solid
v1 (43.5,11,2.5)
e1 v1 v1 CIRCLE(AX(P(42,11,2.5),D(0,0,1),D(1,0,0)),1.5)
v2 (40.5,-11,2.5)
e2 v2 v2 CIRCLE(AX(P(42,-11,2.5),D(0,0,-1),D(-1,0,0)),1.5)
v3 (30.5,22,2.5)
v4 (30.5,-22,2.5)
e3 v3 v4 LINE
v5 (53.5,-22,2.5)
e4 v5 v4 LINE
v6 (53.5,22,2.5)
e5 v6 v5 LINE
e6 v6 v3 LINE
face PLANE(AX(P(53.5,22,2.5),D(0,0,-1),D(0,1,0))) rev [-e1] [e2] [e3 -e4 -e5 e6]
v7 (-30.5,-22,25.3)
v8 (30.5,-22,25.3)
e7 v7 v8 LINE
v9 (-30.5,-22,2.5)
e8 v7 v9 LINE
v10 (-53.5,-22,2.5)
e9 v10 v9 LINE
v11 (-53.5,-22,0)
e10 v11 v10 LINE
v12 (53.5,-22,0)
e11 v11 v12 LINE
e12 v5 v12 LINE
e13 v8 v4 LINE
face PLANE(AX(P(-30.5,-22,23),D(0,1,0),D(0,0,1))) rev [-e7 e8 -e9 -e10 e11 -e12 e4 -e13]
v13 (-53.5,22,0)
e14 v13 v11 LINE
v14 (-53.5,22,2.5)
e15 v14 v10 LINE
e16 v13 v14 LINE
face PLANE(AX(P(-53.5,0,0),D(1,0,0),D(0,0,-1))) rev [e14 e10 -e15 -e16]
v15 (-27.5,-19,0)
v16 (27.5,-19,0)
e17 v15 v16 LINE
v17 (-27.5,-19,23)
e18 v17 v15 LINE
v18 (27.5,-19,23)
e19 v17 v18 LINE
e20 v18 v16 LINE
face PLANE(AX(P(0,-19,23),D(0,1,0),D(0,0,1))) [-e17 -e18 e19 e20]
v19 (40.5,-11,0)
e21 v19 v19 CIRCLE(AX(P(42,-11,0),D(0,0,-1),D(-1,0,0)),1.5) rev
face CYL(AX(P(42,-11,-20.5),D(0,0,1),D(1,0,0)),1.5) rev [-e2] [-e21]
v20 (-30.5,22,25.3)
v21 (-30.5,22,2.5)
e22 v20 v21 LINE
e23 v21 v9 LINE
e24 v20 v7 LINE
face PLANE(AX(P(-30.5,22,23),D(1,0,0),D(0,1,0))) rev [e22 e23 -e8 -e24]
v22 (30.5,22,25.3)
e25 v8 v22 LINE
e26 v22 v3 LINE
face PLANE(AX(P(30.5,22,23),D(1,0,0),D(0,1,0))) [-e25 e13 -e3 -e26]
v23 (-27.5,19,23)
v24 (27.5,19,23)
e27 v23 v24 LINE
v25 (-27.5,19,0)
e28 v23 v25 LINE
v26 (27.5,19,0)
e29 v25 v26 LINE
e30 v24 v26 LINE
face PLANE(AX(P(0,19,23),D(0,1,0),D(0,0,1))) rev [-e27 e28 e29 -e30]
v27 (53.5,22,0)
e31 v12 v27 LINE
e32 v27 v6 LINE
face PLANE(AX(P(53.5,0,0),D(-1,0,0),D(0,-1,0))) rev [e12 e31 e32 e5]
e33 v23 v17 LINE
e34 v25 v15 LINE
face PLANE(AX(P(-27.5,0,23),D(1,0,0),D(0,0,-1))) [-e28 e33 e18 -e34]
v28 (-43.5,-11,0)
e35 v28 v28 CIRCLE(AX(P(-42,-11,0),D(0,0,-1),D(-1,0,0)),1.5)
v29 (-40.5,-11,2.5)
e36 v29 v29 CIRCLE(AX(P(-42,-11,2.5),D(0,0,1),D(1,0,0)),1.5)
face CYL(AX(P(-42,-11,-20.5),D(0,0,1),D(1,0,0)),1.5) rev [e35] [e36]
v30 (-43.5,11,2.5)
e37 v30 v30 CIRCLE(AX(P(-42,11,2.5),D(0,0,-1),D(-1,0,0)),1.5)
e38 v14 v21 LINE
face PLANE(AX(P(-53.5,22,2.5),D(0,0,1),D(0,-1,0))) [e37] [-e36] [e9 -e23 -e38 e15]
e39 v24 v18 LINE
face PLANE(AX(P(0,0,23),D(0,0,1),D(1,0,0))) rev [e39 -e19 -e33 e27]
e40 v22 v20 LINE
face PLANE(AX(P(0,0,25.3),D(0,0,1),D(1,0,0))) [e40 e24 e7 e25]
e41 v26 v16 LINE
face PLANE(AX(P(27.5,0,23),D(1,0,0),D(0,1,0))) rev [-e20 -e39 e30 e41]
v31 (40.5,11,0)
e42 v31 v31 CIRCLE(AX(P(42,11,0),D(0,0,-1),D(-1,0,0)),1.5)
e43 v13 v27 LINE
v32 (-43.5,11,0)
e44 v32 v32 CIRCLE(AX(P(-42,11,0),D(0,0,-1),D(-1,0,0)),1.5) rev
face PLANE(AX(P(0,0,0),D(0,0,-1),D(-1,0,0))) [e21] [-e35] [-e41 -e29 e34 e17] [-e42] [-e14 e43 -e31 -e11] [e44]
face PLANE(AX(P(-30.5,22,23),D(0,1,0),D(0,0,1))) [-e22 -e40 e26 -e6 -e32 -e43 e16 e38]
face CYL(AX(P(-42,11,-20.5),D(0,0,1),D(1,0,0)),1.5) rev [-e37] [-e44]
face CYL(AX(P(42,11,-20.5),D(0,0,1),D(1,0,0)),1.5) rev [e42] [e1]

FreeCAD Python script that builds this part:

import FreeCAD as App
import Part
import Sketcher
from FreeCAD import Vector

doc = App.newDocument("Part")
body = doc.addObject("PartDesign::Body", "Body")

sketch1 = body.newObject("Sketcher::SketchObject", "Sketch")
sketch1.AttachmentSupport = (doc.getObject("XY_Plane"), [""])
sketch1.MapMode = "FlatFace"
sketch1.addGeometry(Part.LineSegment(Vector(-30, 22, 0), Vector(-30, -22, 0)), False)
sketch1.addGeometry(Part.LineSegment(Vector(-30, -22, 0), Vector(30, -22, 0)), False)
sketch1.addGeometry(Part.LineSegment(Vector(30, -22, 0), Vector(30, 22, 0)), False)
sketch1.addGeometry(Part.LineSegment(Vector(30, 22, 0), Vector(-30, 22, 0)), False)
sketch1.addGeometry(Part.LineSegment(Vector(28, -19, 0), Vector(-28, -19, 0)), False)
sketch1.addGeometry(Part.LineSegment(Vector(-28, -19, 0), Vector(-28, 19, 0)), False)
sketch1.addGeometry(Part.LineSegment(Vector(-28, 19, 0), Vector(28, 19, 0)), False)
sketch1.addGeometry(Part.LineSegment(Vector(28, 19, 0), Vector(28, -19, 0)), False)
sketch1.addConstraint(Sketcher.Constraint("Coincident", 0, 2, 1, 1))
sketch1.addConstraint(Sketcher.Constraint("Coincident", 1, 2, 2, 1))
sketch1.addConstraint(Sketcher.Constraint("Coincident", 2, 2, 3, 1))
sketch1.addConstraint(Sketcher.Constraint("Coincident", 3, 2, 0, 1))
sketch1.addConstraint(Sketcher.Constraint("Coincident", 4, 2, 5, 1))
sketch1.addConstraint(Sketcher.Constraint("Coincident", 5, 2, 6, 1))
sketch1.addConstraint(Sketcher.Constraint("Coincident", 6, 2, 7, 1))
sketch1.addConstraint(Sketcher.Constraint("Coincident", 7, 2, 4, 1))
sketch1.addConstraint(Sketcher.Constraint("Vertical", 0))
sketch1.addConstraint(Sketcher.Constraint("Horizontal", 1))
sketch1.addConstraint(Sketcher.Constraint("Vertical", 2))
sketch1.addConstraint(Sketcher.Constraint("Horizontal", 3))
sketch1.addConstraint(Sketcher.Constraint("Horizontal", 4))
sketch1.addConstraint(Sketcher.Constraint("Vertical", 5))
sketch1.addConstraint(Sketcher.Constraint("Horizontal", 6))
sketch1.addConstraint(Sketcher.Constraint("Vertical", 7))
sketch1.addConstraint(Sketcher.Constraint("Symmetric", 0, 2, 2, 2, -1, 1))
sketch1.addConstraint(Sketcher.Constraint("Symmetric", 4, 2, 6, 2, -1, 1))
sketch1.addConstraint(Sketcher.Constraint("DistanceX", 1, 1, 1, 2, 61.0))
sketch1.addConstraint(Sketcher.Constraint("DistanceX", 4, 2, 4, 1, 55.0))
sketch1.addConstraint(Sketcher.Constraint("DistanceY", 0, 2, 0, 1, 44.0))
sketch1.addConstraint(Sketcher.Constraint("DistanceY", 5, 1, 5, 2, 38.0))
pad1 = body.newObject("PartDesign::Pad", "Pad")
pad1.Profile = sketch1
pad1.Length = 23

sketch2 = body.newObject("Sketcher::SketchObject", "Sketch001")
sketch2.AttachmentSupport = (doc.getObject("XY_Plane"), [""])
sketch2.MapMode = "FlatFace"
sketch2.AttachmentOffset = App.Placement(Vector(0, 0, 23), App.Rotation())
sketch2.addGeometry(Part.LineSegment(Vector(-30, 22, 0), Vector(-30, -22, 0)), False)
sketch2.addGeometry(Part.LineSegment(Vector(-30, -22, 0), Vector(30, -22, 0)), False)
sketch2.addGeometry(Part.LineSegment(Vector(30, -22, 0), Vector(30, 22, 0)), False)
sketch2.addGeometry(Part.LineSegment(Vector(30, 22, 0), Vector(-30, 22, 0)), False)
sketch2.addConstraint(Sketcher.Constraint("Coincident", 0, 2, 1, 1))
sketch2.addConstraint(Sketcher.Constraint("Coincident", 1, 2, 2, 1))
sketch2.addConstraint(Sketcher.Constraint("Coincident", 2, 2, 3, 1))
sketch2.addConstraint(Sketcher.Constraint("Coincident", 3, 2, 0, 1))
sketch2.addConstraint(Sketcher.Constraint("Vertical", 0))
sketch2.addConstraint(Sketcher.Constraint("Horizontal", 1))
sketch2.addConstraint(Sketcher.Constraint("Vertical", 2))
sketch2.addConstraint(Sketcher.Constraint("Horizontal", 3))
sketch2.addConstraint(Sketcher.Constraint("Symmetric", 0, 2, 2, 2, -1, 1))
sketch2.addConstraint(Sketcher.Constraint("DistanceX", 1, 1, 1, 2, 61.0))
sketch2.addConstraint(Sketcher.Constraint("DistanceY", 0, 2, 0, 1, 44.0))
pad2 = body.newObject("PartDesign::Pad", "Pad001")
pad2.Profile = sketch2
pad2.Length = 2.3

sketch3 = body.newObject("Sketcher::SketchObject", "Sketch002")
sketch3.AttachmentSupport = (doc.getObject("YZ_Plane"), [""])
sketch3.MapMode = "FlatFace"
sketch3.AttachmentOffset = App.Placement(Vector(0, 0, -30.5), App.Rotation())
sketch3.addGeometry(Part.LineSegment(Vector(22, 0, 0), Vector(-22, 0, 0)), False)
sketch3.addGeometry(Part.LineSegment(Vector(-22, 0, 0), Vector(-22, 2.5, 0)), False)
sketch3.addGeometry(Part.LineSegment(Vector(-22, 2.5, 0), Vector(22, 2.5, 0)), False)
sketch3.addGeometry(Part.LineSegment(Vector(22, 2.5, 0), Vector(22, 0, 0)), False)
sketch3.addConstraint(Sketcher.Constraint("Coincident", 0, 2, 1, 1))
sketch3.addConstraint(Sketcher.Constraint("Coincident", 1, 2, 2, 1))
sketch3.addConstraint(Sketcher.Constraint("Coincident", 2, 2, 3, 1))
sketch3.addConstraint(Sketcher.Constraint("Coincident", 3, 2, 0, 1))
sketch3.addConstraint(Sketcher.Constraint("Horizontal", 0))
sketch3.addConstraint(Sketcher.Constraint("Vertical", 1))
sketch3.addConstraint(Sketcher.Constraint("Horizontal", 2))
sketch3.addConstraint(Sketcher.Constraint("Vertical", 3))
sketch3.addConstraint(Sketcher.Constraint("Symmetric", 0, 2, 3, 2, -1, 1))
sketch3.addConstraint(Sketcher.Constraint("DistanceX", 0, 2, 0, 1, 44.0))
sketch3.addConstraint(Sketcher.Constraint("DistanceY", 1, 1, 1, 2, 2.5))
pad3 = body.newObject("PartDesign::Pad", "Pad002")
pad3.Profile = sketch3
pad3.Length = 23
pad3.Reversed = True

sketch4 = body.newObject("Sketcher::SketchObject", "Sketch003")
sketch4.AttachmentSupport = (doc.getObject("YZ_Plane"), [""])
sketch4.MapMode = "FlatFace"
sketch4.AttachmentOffset = App.Placement(Vector(0, 0, 30.5), App.Rotation())
sketch4.addGeometry(Part.LineSegment(Vector(22, 2.5, 0), Vector(-22, 2.5, 0)), False)
sketch4.addGeometry(Part.LineSegment(Vector(-22, 2.5, 0), Vector(-22, 0, 0)), False)
sketch4.addGeometry(Part.LineSegment(Vector(-22, 0, 0), Vector(22, 0, 0)), False)
sketch4.addGeometry(Part.LineSegment(Vector(22, 0, 0), Vector(22, 2.5, 0)), False)
sketch4.addConstraint(Sketcher.Constraint("Coincident", 0, 2, 1, 1))
sketch4.addConstraint(Sketcher.Constraint("Coincident", 1, 2, 2, 1))
sketch4.addConstraint(Sketcher.Constraint("Coincident", 2, 2, 3, 1))
sketch4.addConstraint(Sketcher.Constraint("Coincident", 3, 2, 0, 1))
sketch4.addConstraint(Sketcher.Constraint("Horizontal", 0))
sketch4.addConstraint(Sketcher.Constraint("Vertical", 1))
sketch4.addConstraint(Sketcher.Constraint("Horizontal", 2))
sketch4.addConstraint(Sketcher.Constraint("Vertical", 3))
sketch4.addConstraint(Sketcher.Constraint("Symmetric", 1, 2, 2, 2, -1, 1))
sketch4.addConstraint(Sketcher.Constraint("DistanceX", 0, 2, 0, 1, 44.0))
sketch4.addConstraint(Sketcher.Constraint("DistanceY", 1, 2, 1, 1, 2.5))
pad4 = body.newObject("PartDesign::Pad", "Pad003")
pad4.Profile = sketch4
pad4.Length = 23

sketch5 = body.newObject("Sketcher::SketchObject", "Sketch004")
sketch5.AttachmentSupport = (doc.getObject("XY_Plane"), [""])
sketch5.MapMode = "FlatFace"
sketch5.AttachmentOffset = App.Placement(Vector(0, 0, 2.5), App.Rotation())
sketch5.addGeometry(Part.Circle(Vector(42, 11, 0), Vector(0, 0, 1), 1.5), False)
sketch5.addGeometry(Part.Circle(Vector(42, -11, 0), Vector(0, 0, 1), 1.5), False)
sketch5.addGeometry(Part.Circle(Vector(-42, -11, 0), Vector(0, 0, 1), 1.5), False)
sketch5.addGeometry(Part.Circle(Vector(-42, 11, 0), Vector(0, 0, 1), 1.5), False)
sketch5.addConstraint(Sketcher.Constraint("Equal", 0, 1))
sketch5.addConstraint(Sketcher.Constraint("Equal", 1, 2))
sketch5.addConstraint(Sketcher.Constraint("Equal", 2, 3))
sketch5.addConstraint(Sketcher.Constraint("Symmetric", 0, 3, 2, 3, -1, 1))
sketch5.addConstraint(Sketcher.Constraint("Symmetric", 1, 3, 3, 3, -1, 1))
sketch5.addConstraint(Sketcher.Constraint("Symmetric", 1, 3, 2, 3, -2))
sketch5.addConstraint(Sketcher.Constraint("Diameter", 0, 3.0))
sketch5.addConstraint(Sketcher.Constraint("DistanceX", -1, 1, 0, 3, 42.0))
sketch5.addConstraint(Sketcher.Constraint("DistanceY", -1, 1, 0, 3, 11.0))
pocket1 = body.newObject("PartDesign::Pocket", "Pocket")
pocket1.Profile = sketch5
pocket1.Length = 23

doc.recompute()
